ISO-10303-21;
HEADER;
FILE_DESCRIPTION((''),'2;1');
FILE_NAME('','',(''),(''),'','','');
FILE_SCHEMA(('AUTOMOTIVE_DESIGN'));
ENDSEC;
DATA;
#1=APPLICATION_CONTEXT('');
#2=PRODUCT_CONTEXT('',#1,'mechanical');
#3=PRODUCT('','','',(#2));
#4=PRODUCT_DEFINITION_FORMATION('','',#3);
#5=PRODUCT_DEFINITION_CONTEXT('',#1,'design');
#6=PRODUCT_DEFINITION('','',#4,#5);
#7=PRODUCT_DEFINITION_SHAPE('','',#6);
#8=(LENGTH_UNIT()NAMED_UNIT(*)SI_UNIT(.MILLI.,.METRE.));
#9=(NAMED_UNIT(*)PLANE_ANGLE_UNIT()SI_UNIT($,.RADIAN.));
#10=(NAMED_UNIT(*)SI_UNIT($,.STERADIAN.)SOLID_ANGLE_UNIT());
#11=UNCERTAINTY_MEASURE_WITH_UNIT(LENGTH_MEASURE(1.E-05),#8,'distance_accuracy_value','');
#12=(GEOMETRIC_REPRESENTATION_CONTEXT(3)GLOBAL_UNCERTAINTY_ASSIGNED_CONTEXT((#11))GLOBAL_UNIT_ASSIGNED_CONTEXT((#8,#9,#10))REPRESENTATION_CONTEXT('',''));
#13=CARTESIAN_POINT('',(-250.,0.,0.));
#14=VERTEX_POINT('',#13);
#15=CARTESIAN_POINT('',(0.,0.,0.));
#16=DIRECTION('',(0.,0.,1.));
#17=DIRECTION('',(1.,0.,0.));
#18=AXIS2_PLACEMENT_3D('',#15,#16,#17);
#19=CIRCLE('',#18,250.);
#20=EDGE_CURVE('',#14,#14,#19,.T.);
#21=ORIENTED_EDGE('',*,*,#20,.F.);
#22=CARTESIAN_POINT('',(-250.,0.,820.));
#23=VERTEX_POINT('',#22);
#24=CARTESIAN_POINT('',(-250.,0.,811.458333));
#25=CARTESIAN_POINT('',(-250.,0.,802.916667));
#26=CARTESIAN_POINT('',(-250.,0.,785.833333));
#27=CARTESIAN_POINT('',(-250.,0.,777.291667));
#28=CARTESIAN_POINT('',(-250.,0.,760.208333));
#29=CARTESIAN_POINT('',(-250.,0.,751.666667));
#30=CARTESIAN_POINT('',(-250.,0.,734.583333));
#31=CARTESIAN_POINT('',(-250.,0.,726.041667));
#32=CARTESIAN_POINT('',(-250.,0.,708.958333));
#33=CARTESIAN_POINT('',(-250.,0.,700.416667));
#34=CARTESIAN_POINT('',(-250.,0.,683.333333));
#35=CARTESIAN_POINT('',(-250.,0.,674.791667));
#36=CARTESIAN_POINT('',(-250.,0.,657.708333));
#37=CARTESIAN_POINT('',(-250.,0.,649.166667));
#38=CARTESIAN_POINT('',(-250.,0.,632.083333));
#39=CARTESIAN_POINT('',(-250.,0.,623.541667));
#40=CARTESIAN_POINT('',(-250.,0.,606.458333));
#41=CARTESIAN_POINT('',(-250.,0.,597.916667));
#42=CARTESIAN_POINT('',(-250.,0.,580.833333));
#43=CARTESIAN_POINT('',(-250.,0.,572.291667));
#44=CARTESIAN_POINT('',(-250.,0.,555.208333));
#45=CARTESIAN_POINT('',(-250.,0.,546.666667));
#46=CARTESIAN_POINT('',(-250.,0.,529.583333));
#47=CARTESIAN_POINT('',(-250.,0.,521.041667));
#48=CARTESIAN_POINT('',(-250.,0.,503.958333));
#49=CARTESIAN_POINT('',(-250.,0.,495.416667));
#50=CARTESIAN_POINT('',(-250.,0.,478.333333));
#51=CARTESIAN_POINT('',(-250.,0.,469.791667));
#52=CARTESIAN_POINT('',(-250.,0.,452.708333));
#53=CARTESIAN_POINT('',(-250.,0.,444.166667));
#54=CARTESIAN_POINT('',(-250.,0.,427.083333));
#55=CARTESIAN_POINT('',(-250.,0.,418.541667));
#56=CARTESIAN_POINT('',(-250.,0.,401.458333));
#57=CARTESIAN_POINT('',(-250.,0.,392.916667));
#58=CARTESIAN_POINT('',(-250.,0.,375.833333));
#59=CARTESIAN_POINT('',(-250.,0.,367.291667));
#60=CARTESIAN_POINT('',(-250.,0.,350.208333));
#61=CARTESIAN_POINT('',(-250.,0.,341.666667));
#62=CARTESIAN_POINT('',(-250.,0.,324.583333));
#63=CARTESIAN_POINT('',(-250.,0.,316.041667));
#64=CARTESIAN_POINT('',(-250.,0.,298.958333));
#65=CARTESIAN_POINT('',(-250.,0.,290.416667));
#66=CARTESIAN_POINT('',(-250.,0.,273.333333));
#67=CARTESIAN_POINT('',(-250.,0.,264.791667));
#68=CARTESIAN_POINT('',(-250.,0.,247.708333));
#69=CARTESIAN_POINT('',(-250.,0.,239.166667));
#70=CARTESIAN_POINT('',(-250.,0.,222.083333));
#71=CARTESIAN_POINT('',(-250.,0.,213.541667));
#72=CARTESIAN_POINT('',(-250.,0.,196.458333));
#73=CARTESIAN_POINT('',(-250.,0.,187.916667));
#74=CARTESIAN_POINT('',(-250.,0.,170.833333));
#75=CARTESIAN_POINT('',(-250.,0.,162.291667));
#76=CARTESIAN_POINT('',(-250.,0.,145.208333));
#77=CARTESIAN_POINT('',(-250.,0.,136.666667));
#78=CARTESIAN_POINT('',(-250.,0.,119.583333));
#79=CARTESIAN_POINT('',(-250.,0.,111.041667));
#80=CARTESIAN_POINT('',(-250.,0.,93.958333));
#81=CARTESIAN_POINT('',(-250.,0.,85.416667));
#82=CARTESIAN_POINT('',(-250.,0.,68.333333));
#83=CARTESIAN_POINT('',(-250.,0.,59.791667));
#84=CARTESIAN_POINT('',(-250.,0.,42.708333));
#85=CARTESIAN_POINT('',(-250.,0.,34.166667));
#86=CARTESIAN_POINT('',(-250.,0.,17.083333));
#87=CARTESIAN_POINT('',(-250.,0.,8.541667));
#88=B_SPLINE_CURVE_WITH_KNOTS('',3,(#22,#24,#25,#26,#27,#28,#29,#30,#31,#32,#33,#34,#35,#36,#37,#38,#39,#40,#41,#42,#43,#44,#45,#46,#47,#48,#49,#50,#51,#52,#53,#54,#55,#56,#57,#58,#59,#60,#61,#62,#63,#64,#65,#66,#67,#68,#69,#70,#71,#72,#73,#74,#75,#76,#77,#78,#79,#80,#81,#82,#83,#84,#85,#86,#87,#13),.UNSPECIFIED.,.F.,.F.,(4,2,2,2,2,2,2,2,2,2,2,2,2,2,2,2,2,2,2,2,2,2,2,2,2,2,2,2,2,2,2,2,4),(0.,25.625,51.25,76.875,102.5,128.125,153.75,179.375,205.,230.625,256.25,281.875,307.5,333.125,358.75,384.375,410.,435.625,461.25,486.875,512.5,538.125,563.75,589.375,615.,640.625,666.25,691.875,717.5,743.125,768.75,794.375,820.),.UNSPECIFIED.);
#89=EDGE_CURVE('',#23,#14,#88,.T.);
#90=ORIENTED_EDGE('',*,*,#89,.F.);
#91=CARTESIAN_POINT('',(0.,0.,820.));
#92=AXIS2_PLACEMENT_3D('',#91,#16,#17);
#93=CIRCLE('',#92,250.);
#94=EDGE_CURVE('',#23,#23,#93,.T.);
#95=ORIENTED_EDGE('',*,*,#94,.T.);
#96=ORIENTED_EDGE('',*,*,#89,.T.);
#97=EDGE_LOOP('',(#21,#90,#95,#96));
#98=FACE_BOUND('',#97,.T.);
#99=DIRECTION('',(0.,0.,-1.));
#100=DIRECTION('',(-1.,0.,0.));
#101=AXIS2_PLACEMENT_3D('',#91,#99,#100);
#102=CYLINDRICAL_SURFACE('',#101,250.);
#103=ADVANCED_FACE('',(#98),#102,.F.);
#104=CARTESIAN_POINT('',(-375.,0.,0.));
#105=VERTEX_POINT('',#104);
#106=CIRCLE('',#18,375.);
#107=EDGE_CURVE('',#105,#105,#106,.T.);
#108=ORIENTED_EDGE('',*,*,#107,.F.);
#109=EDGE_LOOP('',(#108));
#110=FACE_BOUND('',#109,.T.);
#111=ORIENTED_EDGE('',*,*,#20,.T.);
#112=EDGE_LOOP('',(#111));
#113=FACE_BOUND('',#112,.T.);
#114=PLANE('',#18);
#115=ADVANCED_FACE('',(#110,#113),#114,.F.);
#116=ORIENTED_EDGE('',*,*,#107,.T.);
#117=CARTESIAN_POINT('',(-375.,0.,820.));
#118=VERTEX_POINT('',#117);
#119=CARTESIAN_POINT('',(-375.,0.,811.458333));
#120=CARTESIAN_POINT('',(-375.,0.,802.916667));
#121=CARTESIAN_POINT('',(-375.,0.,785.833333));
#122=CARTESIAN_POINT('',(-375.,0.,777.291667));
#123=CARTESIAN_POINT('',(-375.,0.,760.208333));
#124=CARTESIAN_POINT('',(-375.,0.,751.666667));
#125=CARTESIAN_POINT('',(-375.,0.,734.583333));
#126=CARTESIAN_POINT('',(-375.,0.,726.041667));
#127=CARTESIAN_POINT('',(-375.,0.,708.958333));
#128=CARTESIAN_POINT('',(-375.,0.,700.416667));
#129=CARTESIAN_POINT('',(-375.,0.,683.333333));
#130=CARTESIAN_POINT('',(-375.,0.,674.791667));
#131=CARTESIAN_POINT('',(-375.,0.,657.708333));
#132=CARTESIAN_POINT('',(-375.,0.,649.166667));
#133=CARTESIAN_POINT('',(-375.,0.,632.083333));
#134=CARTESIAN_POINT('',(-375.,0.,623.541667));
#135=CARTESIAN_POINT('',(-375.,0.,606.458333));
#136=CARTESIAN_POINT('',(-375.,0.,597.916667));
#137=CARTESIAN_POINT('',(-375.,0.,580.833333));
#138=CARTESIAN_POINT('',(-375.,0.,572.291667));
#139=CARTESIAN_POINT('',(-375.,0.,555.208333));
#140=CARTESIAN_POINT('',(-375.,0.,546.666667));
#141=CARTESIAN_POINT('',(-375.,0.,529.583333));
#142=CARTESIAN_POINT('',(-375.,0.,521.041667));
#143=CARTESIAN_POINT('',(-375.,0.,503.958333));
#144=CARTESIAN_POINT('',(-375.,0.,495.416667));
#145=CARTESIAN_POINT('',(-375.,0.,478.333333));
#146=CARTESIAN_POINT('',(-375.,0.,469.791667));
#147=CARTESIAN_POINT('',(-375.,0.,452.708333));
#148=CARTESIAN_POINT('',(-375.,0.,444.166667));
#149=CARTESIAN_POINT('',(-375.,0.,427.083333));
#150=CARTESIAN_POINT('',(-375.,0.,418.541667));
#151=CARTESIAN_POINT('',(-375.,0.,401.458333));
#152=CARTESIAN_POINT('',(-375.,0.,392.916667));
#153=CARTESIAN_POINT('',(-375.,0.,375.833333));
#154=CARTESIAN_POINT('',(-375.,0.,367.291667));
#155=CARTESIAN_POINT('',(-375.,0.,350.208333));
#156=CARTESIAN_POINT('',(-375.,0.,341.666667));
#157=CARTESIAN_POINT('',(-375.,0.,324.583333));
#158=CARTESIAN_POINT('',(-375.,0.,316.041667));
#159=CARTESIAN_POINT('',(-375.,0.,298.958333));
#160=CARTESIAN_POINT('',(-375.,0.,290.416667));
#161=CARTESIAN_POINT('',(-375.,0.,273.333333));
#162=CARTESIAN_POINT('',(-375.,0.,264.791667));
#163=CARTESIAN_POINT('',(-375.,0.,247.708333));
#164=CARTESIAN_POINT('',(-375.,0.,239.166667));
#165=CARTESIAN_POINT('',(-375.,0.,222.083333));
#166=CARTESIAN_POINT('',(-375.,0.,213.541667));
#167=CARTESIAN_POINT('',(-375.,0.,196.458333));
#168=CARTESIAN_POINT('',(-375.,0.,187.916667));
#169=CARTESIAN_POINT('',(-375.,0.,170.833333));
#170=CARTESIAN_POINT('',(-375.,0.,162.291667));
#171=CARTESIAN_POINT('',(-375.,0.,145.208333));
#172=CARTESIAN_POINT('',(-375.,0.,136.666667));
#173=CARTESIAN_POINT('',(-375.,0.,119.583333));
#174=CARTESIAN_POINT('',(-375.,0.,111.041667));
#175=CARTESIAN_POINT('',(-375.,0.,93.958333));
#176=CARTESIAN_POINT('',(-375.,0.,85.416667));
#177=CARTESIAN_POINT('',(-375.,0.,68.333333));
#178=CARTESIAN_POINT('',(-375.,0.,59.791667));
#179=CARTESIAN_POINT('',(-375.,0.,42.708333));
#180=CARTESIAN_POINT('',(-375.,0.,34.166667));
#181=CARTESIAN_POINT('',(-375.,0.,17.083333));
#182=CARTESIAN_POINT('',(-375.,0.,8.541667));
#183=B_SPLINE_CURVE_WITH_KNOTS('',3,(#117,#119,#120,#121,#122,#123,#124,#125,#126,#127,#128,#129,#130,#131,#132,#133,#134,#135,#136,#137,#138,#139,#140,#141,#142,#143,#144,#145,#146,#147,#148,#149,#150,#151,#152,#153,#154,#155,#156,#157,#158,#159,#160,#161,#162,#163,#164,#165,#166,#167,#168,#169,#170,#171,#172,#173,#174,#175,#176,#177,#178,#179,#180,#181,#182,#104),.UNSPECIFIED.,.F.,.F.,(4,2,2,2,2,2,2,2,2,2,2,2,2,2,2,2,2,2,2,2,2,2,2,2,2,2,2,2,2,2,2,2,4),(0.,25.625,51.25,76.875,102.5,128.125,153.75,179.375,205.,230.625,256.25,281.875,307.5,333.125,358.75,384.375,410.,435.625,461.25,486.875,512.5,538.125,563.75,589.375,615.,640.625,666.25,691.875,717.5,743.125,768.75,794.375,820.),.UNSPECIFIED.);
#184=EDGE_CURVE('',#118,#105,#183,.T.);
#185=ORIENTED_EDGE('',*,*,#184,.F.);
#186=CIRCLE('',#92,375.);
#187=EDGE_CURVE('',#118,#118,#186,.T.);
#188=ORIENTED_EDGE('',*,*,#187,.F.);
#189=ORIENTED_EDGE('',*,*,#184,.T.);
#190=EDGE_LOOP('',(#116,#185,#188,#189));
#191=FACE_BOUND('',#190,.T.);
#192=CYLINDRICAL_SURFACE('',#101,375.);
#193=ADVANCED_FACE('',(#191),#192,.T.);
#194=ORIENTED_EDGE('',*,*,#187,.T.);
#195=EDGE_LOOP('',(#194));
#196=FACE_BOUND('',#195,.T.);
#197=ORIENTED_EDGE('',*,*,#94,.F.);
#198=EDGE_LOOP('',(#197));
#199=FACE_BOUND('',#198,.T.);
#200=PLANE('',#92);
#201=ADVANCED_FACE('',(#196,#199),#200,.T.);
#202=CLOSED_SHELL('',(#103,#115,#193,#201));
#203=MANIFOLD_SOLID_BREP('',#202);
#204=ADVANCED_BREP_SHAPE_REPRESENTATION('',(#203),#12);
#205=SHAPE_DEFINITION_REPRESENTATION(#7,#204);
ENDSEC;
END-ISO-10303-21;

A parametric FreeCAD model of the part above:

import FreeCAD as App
import Part
import Sketcher
from FreeCAD import Vector
Q = App.Units.Quantity

doc = App.newDocument("Part")
body = doc.addObject("PartDesign::Body", "Body")

sketch1 = body.newObject("Sketcher::SketchObject", "Sketch")
sketch1.AttachmentSupport = (doc.getObject("XY_Plane"), [""])
sketch1.MapMode = "FlatFace"
sketch1.addGeometry([
    Part.Circle(Vector(0, 0, 0), Vector(0, 0, 1), 375),
    Part.Circle(Vector(0, 0, 0), Vector(0, 0, 1), 250),
], False)
sketch1.addConstraint([
    Sketcher.Constraint("Coincident", 0, 3, -1, 1),
    Sketcher.Constraint("Coincident", 1, 3, -1, 1),
    Sketcher.Constraint("Diameter", 0, Q("750 mm")),
    Sketcher.Constraint("Diameter", 1, Q("500 mm")),
])
pad1 = body.newObject("PartDesign::Pad", "Pad")
pad1.Profile = sketch1
pad1.Length = 820

doc.recompute()
